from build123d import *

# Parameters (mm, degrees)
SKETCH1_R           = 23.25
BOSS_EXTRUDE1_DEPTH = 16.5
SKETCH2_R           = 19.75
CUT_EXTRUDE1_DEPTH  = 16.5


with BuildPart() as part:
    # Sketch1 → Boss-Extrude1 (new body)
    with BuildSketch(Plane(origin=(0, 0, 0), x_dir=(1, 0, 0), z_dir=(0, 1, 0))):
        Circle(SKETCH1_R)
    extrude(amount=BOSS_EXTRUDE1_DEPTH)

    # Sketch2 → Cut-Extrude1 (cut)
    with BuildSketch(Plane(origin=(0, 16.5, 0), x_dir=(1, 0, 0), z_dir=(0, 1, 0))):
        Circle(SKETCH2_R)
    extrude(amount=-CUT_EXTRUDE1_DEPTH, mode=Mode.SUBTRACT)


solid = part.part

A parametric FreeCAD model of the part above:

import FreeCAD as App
import Part
import Sketcher

V = App.Vector

doc = App.newDocument("Part")
body = doc.addObject("PartDesign::Body", "Body")

sketch1 = doc.addObject("Sketcher::SketchObject", "Sketch")
body.addObject(sketch1)
sketch1.AttachmentSupport = (doc.XZ_Plane, [""])
sketch1.MapMode = "FlatFace"
sketch1.addGeometry(Part.Circle(V(0, 0, 0), V(0, 0, 1), 23), False)
sketch1.addConstraint(Sketcher.Constraint("Coincident", 0, 3, -1, 1))
sketch1.addConstraint(Sketcher.Constraint("Diameter", 0, 46.5))
pad1 = doc.addObject("PartDesign::Pad", "Pad")
body.addObject(pad1)
pad1.Profile = sketch1
pad1.Length = 16.5
pad1.Reversed = True

sketch2 = doc.addObject("Sketcher::SketchObject", "Sketch001")
body.addObject(sketch2)
sketch2.AttachmentSupport = (doc.XZ_Plane, [""])
sketch2.MapMode = "FlatFace"
sketch2.AttachmentOffset = App.Placement(V(0, 0, -16.5), App.Rotation())
sketch2.addGeometry(Part.Circle(V(0, 0, 0), V(0, 0, 1), 20), False)
sketch2.addConstraint(Sketcher.Constraint("Coincident", 0, 3, -1, 1))
sketch2.addConstraint(Sketcher.Constraint("Diameter", 0, 39.5))
pocket1 = doc.addObject("PartDesign::Pocket", "Pocket")
body.addObject(pocket1)
pocket1.Profile = sketch2
pocket1.Length = 16.5
pocket1.Reversed = True

doc.recompute()
